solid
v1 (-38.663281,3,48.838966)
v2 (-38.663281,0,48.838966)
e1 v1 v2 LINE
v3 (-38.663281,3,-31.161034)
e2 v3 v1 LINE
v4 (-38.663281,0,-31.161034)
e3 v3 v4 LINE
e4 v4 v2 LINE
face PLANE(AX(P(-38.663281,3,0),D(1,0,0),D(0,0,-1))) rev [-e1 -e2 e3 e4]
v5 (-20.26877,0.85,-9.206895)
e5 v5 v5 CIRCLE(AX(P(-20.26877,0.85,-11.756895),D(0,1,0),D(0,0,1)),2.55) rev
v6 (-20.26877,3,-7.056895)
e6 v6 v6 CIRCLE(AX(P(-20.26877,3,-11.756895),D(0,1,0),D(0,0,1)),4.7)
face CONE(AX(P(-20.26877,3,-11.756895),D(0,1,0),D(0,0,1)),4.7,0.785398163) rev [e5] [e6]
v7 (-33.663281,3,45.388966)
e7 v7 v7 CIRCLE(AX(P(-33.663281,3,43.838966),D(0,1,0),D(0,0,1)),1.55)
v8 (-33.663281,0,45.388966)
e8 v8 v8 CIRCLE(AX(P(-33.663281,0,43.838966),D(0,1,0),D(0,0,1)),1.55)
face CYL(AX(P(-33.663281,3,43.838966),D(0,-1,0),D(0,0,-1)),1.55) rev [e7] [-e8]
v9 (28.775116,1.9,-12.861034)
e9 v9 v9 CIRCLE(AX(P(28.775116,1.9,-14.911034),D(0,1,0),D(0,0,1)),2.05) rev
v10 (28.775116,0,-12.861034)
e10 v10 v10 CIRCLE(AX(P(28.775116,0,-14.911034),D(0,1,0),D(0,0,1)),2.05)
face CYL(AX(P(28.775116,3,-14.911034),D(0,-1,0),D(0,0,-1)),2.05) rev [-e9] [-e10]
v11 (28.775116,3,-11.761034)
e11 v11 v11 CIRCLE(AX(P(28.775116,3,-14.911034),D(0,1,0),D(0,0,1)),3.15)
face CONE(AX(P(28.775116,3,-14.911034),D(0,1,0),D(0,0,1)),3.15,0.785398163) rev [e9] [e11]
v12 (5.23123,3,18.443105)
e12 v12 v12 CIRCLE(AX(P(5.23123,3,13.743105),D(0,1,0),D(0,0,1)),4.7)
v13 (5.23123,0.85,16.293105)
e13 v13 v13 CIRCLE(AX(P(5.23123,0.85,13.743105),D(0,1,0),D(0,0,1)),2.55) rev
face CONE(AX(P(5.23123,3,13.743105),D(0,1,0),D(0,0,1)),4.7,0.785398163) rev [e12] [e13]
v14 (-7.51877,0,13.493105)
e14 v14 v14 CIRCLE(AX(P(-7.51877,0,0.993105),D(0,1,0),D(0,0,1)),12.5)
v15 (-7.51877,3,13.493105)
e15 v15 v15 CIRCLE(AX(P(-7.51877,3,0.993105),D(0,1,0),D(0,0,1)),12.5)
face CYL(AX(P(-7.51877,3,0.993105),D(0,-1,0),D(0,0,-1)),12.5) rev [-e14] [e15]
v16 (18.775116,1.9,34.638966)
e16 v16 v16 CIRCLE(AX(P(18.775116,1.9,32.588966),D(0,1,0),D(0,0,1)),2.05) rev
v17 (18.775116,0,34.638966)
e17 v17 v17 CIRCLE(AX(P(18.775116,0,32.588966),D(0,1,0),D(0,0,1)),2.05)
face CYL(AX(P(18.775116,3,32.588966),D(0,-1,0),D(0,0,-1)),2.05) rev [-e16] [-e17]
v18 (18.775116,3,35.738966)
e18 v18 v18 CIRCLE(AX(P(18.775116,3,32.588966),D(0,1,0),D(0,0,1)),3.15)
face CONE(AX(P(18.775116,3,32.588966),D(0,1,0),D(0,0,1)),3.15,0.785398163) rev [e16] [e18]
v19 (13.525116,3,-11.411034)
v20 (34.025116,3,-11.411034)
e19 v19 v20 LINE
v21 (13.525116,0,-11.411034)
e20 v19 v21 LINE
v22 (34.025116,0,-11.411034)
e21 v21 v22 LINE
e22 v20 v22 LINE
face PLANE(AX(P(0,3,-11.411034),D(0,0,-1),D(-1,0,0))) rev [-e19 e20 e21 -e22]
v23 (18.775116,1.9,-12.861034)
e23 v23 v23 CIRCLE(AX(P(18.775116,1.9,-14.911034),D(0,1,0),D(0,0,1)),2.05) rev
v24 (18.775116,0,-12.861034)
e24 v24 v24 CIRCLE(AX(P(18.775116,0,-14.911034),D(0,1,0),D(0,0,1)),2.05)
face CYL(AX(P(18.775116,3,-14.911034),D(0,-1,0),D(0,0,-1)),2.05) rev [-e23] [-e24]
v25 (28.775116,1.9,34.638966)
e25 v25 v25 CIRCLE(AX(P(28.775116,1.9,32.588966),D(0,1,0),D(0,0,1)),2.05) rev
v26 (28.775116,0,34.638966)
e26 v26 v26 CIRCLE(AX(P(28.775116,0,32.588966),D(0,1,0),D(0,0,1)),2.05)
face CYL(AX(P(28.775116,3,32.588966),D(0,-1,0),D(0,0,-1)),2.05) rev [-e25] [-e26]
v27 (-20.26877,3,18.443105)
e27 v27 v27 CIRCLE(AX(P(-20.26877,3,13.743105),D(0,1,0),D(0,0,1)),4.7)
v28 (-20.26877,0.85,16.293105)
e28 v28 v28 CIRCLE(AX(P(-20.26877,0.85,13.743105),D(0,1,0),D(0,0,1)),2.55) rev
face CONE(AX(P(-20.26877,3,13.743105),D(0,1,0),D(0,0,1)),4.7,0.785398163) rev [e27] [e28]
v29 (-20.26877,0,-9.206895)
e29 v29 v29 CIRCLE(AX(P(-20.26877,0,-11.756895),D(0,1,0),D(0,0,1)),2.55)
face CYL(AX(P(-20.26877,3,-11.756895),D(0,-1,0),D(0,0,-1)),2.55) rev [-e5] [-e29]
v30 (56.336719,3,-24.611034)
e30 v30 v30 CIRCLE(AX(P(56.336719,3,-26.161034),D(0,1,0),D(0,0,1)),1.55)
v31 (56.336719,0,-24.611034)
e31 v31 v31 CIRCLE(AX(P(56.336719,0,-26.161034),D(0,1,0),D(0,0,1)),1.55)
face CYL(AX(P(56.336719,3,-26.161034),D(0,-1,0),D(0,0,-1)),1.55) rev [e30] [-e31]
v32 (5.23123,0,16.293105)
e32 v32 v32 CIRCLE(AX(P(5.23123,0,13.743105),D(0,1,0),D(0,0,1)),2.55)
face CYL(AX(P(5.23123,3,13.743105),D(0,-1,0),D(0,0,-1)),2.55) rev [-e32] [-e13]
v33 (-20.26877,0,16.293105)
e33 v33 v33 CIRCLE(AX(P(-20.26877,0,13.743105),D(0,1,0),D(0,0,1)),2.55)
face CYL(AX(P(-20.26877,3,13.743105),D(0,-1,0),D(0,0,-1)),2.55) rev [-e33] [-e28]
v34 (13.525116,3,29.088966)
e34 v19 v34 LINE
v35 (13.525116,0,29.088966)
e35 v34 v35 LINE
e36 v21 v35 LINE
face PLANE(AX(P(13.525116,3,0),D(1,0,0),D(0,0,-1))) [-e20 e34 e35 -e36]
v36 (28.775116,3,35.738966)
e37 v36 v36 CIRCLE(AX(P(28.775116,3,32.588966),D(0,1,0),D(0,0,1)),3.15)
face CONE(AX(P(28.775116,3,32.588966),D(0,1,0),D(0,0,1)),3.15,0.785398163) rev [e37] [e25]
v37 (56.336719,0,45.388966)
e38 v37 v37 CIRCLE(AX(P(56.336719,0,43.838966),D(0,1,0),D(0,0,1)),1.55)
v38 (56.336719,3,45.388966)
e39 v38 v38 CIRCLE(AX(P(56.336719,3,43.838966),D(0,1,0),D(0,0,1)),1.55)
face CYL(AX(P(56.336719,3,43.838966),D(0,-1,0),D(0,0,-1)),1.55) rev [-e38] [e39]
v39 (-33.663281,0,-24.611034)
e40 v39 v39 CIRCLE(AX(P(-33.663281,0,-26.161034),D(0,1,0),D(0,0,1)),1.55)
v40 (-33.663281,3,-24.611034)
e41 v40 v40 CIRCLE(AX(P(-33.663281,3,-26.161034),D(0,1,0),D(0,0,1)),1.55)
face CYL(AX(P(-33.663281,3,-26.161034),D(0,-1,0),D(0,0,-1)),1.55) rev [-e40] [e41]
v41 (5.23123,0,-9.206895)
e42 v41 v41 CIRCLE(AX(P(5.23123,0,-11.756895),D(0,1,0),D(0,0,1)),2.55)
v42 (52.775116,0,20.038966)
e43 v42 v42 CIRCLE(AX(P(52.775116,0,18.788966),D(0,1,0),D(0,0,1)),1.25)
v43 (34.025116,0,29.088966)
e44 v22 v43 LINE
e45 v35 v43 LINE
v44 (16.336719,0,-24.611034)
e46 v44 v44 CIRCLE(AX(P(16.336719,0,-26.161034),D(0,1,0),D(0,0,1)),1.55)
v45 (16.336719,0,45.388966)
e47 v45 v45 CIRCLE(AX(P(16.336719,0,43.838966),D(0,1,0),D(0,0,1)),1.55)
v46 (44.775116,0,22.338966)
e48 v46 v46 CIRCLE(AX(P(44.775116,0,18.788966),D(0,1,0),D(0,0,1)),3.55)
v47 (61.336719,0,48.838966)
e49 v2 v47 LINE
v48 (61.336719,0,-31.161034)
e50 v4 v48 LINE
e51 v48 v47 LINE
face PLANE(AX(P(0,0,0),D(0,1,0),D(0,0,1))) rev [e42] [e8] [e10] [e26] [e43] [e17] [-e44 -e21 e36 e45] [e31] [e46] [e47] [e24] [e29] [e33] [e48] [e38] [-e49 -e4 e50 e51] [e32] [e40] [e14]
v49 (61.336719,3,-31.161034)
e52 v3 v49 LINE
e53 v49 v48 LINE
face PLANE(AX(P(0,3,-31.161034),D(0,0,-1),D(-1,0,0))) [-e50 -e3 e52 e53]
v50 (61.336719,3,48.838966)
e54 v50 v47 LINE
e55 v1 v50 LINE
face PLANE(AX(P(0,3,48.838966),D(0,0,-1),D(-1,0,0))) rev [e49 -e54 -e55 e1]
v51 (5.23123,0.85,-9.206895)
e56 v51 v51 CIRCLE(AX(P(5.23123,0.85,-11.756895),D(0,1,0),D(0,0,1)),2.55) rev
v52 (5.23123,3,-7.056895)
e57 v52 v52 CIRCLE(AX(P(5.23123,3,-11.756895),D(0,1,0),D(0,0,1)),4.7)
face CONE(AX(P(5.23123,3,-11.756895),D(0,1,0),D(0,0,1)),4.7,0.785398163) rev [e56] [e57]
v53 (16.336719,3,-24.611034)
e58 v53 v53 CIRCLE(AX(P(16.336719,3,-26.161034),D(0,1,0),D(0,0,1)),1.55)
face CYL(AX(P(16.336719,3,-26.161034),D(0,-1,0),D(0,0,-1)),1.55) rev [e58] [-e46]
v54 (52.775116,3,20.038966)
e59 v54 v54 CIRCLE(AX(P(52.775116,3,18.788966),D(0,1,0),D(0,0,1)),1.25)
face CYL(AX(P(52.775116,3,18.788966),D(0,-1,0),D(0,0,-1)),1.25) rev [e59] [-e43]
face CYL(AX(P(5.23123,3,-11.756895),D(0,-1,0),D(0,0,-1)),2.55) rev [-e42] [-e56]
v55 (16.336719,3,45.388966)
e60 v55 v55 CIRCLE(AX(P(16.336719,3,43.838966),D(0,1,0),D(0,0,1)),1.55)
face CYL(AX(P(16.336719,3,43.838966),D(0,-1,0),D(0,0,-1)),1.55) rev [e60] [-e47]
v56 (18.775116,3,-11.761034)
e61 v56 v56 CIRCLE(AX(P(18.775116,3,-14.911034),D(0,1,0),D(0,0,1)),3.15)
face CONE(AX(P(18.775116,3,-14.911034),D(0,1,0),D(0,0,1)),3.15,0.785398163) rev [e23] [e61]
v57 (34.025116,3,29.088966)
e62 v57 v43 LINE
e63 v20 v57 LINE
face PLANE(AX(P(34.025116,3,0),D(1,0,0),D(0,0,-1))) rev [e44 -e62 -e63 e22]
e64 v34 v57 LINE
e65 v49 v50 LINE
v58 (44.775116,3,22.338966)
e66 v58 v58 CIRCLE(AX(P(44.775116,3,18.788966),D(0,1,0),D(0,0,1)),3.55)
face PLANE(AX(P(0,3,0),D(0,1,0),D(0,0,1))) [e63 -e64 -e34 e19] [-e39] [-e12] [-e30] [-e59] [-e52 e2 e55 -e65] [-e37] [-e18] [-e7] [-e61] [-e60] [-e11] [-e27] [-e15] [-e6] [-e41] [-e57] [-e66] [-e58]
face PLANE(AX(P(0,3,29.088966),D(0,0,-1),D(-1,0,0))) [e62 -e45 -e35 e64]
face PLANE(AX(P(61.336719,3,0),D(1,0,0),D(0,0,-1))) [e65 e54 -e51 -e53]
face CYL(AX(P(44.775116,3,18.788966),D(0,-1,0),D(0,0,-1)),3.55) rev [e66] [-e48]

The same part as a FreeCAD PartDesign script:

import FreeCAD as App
import Part
import Sketcher

V = App.Vector
Q = App.Units.Quantity

doc = App.newDocument("Part")
params = doc.addObject("Spreadsheet::Sheet", "Params")
for row, (alias, value) in enumerate([
    ("sketch1_diameter", "25 mm"),
    ("sketch1_diameter2", "3.1 mm"),
    ("sketch1_diameter3", "5.1 mm"),
    ("sketch1_diameter4", "4.1 mm"),
    ("sketch1_diameter5", "7.1 mm"),
    ("pad1_length", "3 mm"),
    ("sketch2_width", "3 mm"),
    ("sketch2_height", "4.7 mm"),
    ("sketch2_width2", "0.55 mm"),
    ("groove_angle", "360 deg"),
    ("linearpattern_pitch", "25.5 mm"),
    ("linearpattern2_pitch", "36.062446 mm"),
    ("linearpattern3_pitch", "25.5 mm"),
    ("sketch3_width", "3 mm"),
    ("sketch3_height", "1.7 mm"),
    ("sketch3_width2", "1.55 mm"),
    ("groove2_angle", "360 deg"),
    ("linearpattern4_pitch", "10 mm"),
    ("linearpattern5_pitch", "47.5 mm"),
    ("linearpattern6_pitch", "48.54122 mm"),
], start=1):
    params.set(f"A{row}", alias)
    params.set(f"B{row}", "=" + value)
    params.setAlias(f"B{row}", alias)

body = doc.addObject("PartDesign::Body", "Body")

# Sketch on XZ plane
sketch1 = body.newObject("Sketcher::SketchObject", "Sketch")
sketch1.AttachmentSupport = (doc.getObject("XZ_Plane"), [""])
sketch1.MapMode = "FlatFace"
sketch1.addGeometry(Part.LineSegment(V(-38.7, -31.2, 0), V(-38.7, 48.8, 0)), False)
sketch1.addGeometry(Part.LineSegment(V(-38.7, 48.8, 0), V(61.3, 48.8, 0)), False)
sketch1.addGeometry(Part.LineSegment(V(61.3, 48.8, 0), V(61.3, -31.2, 0)), False)
sketch1.addGeometry(Part.LineSegment(V(61.3, -31.2, 0), V(-38.7, -31.2, 0)), False)
sketch1.addGeometry(Part.Circle(V(-33.7, 43.8, 0), V(0, 0, 1), 1.6), False)
sketch1.addGeometry(Part.Circle(V(-20.3, 13.7, 0), V(0, 0, 1), 2.5), False)
sketch1.addGeometry(Part.Circle(V(5.2, 13.7, 0), V(0, 0, 1), 2.5), False)
sketch1.addGeometry(Part.Circle(V(16.3, 43.8, 0), V(0, 0, 1), 1.6), False)
sketch1.addGeometry(Part.Circle(V(18.8, 32.6, 0), V(0, 0, 1), 2), False)
sketch1.addGeometry(Part.Circle(V(28.8, 32.6, 0), V(0, 0, 1), 2), False)
sketch1.addGeometry(Part.Circle(V(56.3, 43.8, 0), V(0, 0, 1), 1.6), False)
sketch1.addGeometry(Part.Circle(V(44.8, 18.8, 0), V(0, 0, 1), 3.5), False)
sketch1.addGeometry(Part.Circle(V(52.8, 18.8, 0), V(0, 0, 1), 1.2), False)
sketch1.addGeometry(Part.Circle(V(-7.5, 1, 0), V(0, 0, 1), 12.5), False)
sketch1.addGeometry(Part.Circle(V(-20.3, -11.8, 0), V(0, 0, 1), 2.5), False)
sketch1.addGeometry(Part.Circle(V(-33.7, -26.2, 0), V(0, 0, 1), 1.6), False)
sketch1.addGeometry(Part.Circle(V(5.2, -11.8, 0), V(0, 0, 1), 2.5), False)
sketch1.addGeometry(Part.LineSegment(V(34, 29.1, 0), V(13.5, 29.1, 0)), False)
sketch1.addGeometry(Part.LineSegment(V(13.5, 29.1, 0), V(13.5, -11.4, 0)), False)
sketch1.addGeometry(Part.LineSegment(V(13.5, -11.4, 0), V(34, -11.4, 0)), False)
sketch1.addGeometry(Part.LineSegment(V(34, -11.4, 0), V(34, 29.1, 0)), False)
sketch1.addGeometry(Part.Circle(V(18.8, -14.9, 0), V(0, 0, 1), 2), False)
sketch1.addGeometry(Part.Circle(V(28.8, -14.9, 0), V(0, 0, 1), 2), False)
sketch1.addGeometry(Part.Circle(V(16.3, -26.2, 0), V(0, 0, 1), 1.6), False)
sketch1.addGeometry(Part.Circle(V(56.3, -26.2, 0), V(0, 0, 1), 1.6), False)
sketch1.addConstraint(Sketcher.Constraint("Coincident", 0, 2, 1, 1))
sketch1.addConstraint(Sketcher.Constraint("Coincident", 1, 2, 2, 1))
sketch1.addConstraint(Sketcher.Constraint("Coincident", 2, 2, 3, 1))
sketch1.addConstraint(Sketcher.Constraint("Coincident", 3, 2, 0, 1))
sketch1.addConstraint(Sketcher.Constraint("Coincident", 17, 2, 18, 1))
sketch1.addConstraint(Sketcher.Constraint("Coincident", 18, 2, 19, 1))
sketch1.addConstraint(Sketcher.Constraint("Coincident", 19, 2, 20, 1))
sketch1.addConstraint(Sketcher.Constraint("Coincident", 20, 2, 17, 1))
sketch1.addConstraint(Sketcher.Constraint("Vertical", 0))
sketch1.addConstraint(Sketcher.Constraint("Horizontal", 1))
sketch1.addConstraint(Sketcher.Constraint("Vertical", 2))
sketch1.addConstraint(Sketcher.Constraint("Horizontal", 3))
sketch1.addConstraint(Sketcher.Constraint("Horizontal", 17))
sketch1.addConstraint(Sketcher.Constraint("Vertical", 18))
sketch1.addConstraint(Sketcher.Constraint("Horizontal", 19))
sketch1.addConstraint(Sketcher.Constraint("Vertical", 20))
sketch1.addConstraint(Sketcher.Constraint("Equal", 5, 6))
sketch1.addConstraint(Sketcher.Constraint("Equal", 4, 7))
sketch1.addConstraint(Sketcher.Constraint("Equal", 8, 9))
sketch1.addConstraint(Sketcher.Constraint("Equal", 7, 10))
sketch1.addConstraint(Sketcher.Constraint("Equal", 6, 14))
sketch1.addConstraint(Sketcher.Constraint("Equal", 10, 15))
sketch1.addConstraint(Sketcher.Constraint("Equal", 14, 16))
sketch1.addConstraint(Sketcher.Constraint("Equal", 9, 21))
sketch1.addConstraint(Sketcher.Constraint("Equal", 21, 22))
sketch1.addConstraint(Sketcher.Constraint("Equal", 15, 23))
sketch1.addConstraint(Sketcher.Constraint("Equal", 23, 24))
sketch1.addConstraint(Sketcher.Constraint("Horizontal", 5, 3, 6, 3))
sketch1.addConstraint(Sketcher.Constraint("Horizontal", 4, 3, 7, 3))
sketch1.addConstraint(Sketcher.Constraint("Horizontal", 8, 3, 9, 3))
sketch1.addConstraint(Sketcher.Constraint("Horizontal", 7, 3, 10, 3))
sketch1.addConstraint(Sketcher.Constraint("Horizontal", 11, 3, 12, 3))
sketch1.addConstraint(Sketcher.Constraint("Horizontal", 14, 3, 16, 3))
sketch1.addConstraint(Sketcher.Constraint("Horizontal", 21, 3, 22, 3))
sketch1.addConstraint(Sketcher.Constraint("Horizontal", 15, 3, 23, 3))
sketch1.addConstraint(Sketcher.Constraint("Horizontal", 23, 3, 24, 3))
sketch1.addConstraint(Sketcher.Constraint("Vertical", 5, 3, 14, 3))
sketch1.addConstraint(Sketcher.Constraint("Vertical", 4, 3, 15, 3))
sketch1.addConstraint(Sketcher.Constraint("Vertical", 6, 3, 16, 3))
sketch1.addConstraint(Sketcher.Constraint("Vertical", 8, 3, 21, 3))
sketch1.addConstraint(Sketcher.Constraint("Vertical", 9, 3, 22, 3))
sketch1.addConstraint(Sketcher.Constraint("Vertical", 7, 3, 23, 3))
sketch1.addConstraint(Sketcher.Constraint("Vertical", 10, 3, 24, 3))
sketch1.addConstraint(Sketcher.Constraint("Diameter", 13, 25.0))
sketch1.addConstraint(Sketcher.Constraint("Diameter", 4, 3.1))
sketch1.addConstraint(Sketcher.Constraint("Diameter", 5, 5.1))
sketch1.addConstraint(Sketcher.Constraint("Diameter", 8, 4.1))
sketch1.addConstraint(Sketcher.Constraint("Diameter", 11, 7.1))
sketch1.addConstraint(Sketcher.Constraint("Diameter", 12, 2.5))
sketch1.addConstraint(Sketcher.Constraint("DistanceX", 1, 1, 1, 2, 100.0))
sketch1.addConstraint(Sketcher.Constraint("DistanceY", 0, 1, 0, 2, 80.0))
sketch1.addConstraint(Sketcher.Constraint("DistanceX", 17, 2, 17, 1, 20.5))
sketch1.addConstraint(Sketcher.Constraint("DistanceY", 18, 2, 18, 1, 40.5))
sketch1.addConstraint(Sketcher.Constraint("DistanceX", 4, 3, 7, 3, 50.0))
sketch1.addConstraint(Sketcher.Constraint("DistanceX", 8, 3, 9, 3, 10.0))
sketch1.addConstraint(Sketcher.Constraint("DistanceX", 7, 3, 10, 3, 40.0))
sketch1.addConstraint(Sketcher.Constraint("DistanceX", 9, 3, 11, 3, 16.0))
sketch1.addConstraint(Sketcher.Constraint("DistanceX", 11, 3, 12, 3, 8.0))
sketch1.addConstraint(Sketcher.Constraint("DistanceY", 15, 3, 4, 3, 70.0))
sketch1.addConstraint(Sketcher.Constraint("DistanceX", 0, 2, 4, 3, 5.0))
sketch1.addConstraint(Sketcher.Constraint("DistanceY", 4, 3, 0, 2, 5.0))
sketch1.addConstraint(Sketcher.Constraint("DistanceX", 5, 3, 6, 3, 25.5))
sketch1.addConstraint(Sketcher.Constraint("DistanceY", 11, 3, 9, 3, 13.8))
sketch1.addConstraint(Sketcher.Constraint("DistanceY", 14, 3, 5, 3, 25.5))
sketch1.addConstraint(Sketcher.Constraint("DistanceY", 21, 3, 11, 3, 33.7))
sketch1.addConstraint(Sketcher.Constraint("DistanceY", 17, 2, 8, 3, 3.5))
sketch1.addConstraint(Sketcher.Constraint("DistanceY", 8, 3, 7, 3, 11.25))
sketch1.addConstraint(Sketcher.Constraint("DistanceX", 5, 3, 13, 3, 12.75))
sketch1.addConstraint(Sketcher.Constraint("DistanceY", 13, 3, 5, 3, 12.75))
sketch1.addConstraint(Sketcher.Constraint("DistanceX", 17, 2, 8, 3, 5.25))
sketch1.addConstraint(Sketcher.Constraint("DistanceX", 4, 3, -1, 1, 33.663281))
sketch1.addConstraint(Sketcher.Constraint("DistanceX", 5, 3, -1, 1, 20.26877))
sketch1.addConstraint(Sketcher.Constraint("DistanceY", 5, 3, 4, 3, 30.095861))
sketch1.addConstraint(Sketcher.Constraint("DistanceY", -1, 1, 4, 3, 43.838966))
sketch1.addConstraint(Sketcher.Constraint("DistanceX", -1, 1, 8, 3, 18.775116))
sketch1.setExpression("Constraints[43]", "Params.sketch1_diameter")
sketch1.setExpression("Constraints[44]", "Params.sketch1_diameter2")
sketch1.setExpression("Constraints[45]", "Params.sketch1_diameter3")
sketch1.setExpression("Constraints[46]", "Params.sketch1_diameter4")
sketch1.setExpression("Constraints[47]", "Params.sketch1_diameter5")
pad1 = body.newObject("PartDesign::Pad", "Pad")
pad1.Profile = sketch1
pad1.setExpression("Length", "Params.pad1_length")
pad1.Reversed = True

# Sketch on YZ plane
sketch2 = body.newObject("Sketcher::SketchObject", "Sketch001")
sketch2.AttachmentSupport = (doc.getObject("YZ_Plane"), [""])
sketch2.MapMode = "FlatFace"
sketch2.AttachmentOffset = App.Placement(V(0, 0, -20.26877), App.Rotation())
sketch2.addGeometry(Part.LineSegment(V(0, 13.7, 0), V(3, 13.7, 0)), False)
sketch2.addGeometry(Part.LineSegment(V(3, 13.7, 0), V(3, 18.4, 0)), False)
sketch2.addGeometry(Part.LineSegment(V(3, 18.4, 0), V(0.6, 16, 0)), False)
sketch2.addGeometry(Part.LineSegment(V(0.6, 16, 0), V(0, 16, 0)), False)
sketch2.addGeometry(Part.LineSegment(V(0, 16, 0), V(0, 13.7, 0)), False)
sketch2.addGeometry(Part.LineSegment(V(3, 13.7, 0), V(0, 13.7, 0)), True)  # axis
sketch2.addConstraint(Sketcher.Constraint("Coincident", 0, 2, 1, 1))
sketch2.addConstraint(Sketcher.Constraint("Coincident", 1, 2, 2, 1))
sketch2.addConstraint(Sketcher.Constraint("Coincident", 2, 2, 3, 1))
sketch2.addConstraint(Sketcher.Constraint("Coincident", 3, 2, 4, 1))
sketch2.addConstraint(Sketcher.Constraint("Coincident", 4, 2, 0, 1))
sketch2.addConstraint(Sketcher.Constraint("Horizontal", 0))
sketch2.addConstraint(Sketcher.Constraint("Vertical", 1))
sketch2.addConstraint(Sketcher.Constraint("Horizontal", 3))
sketch2.addConstraint(Sketcher.Constraint("Vertical", 4))
sketch2.addConstraint(Sketcher.Constraint("Horizontal", 5))
sketch2.addConstraint(Sketcher.Constraint("Coincident", 5, 1, 0, 2))
sketch2.addConstraint(Sketcher.Constraint("PointOnObject", 3, 2, -2))
sketch2.addConstraint(Sketcher.Constraint("PointOnObject", 5, 2, -2))
sketch2.addConstraint(Sketcher.Constraint("DistanceX", 0, 1, 0, 2, 3.0))
sketch2.addConstraint(Sketcher.Constraint("Angle", 2, Q("-135 deg")))
sketch2.addConstraint(Sketcher.Constraint("DistanceY", 1, 1, 1, 2, 4.7))
sketch2.addConstraint(Sketcher.Constraint("DistanceX", 3, 2, 3, 1, 0.55))
sketch2.addConstraint(Sketcher.Constraint("DistanceY", -1, 1, 0, 2, 13.743105))
sketch2.setExpression("Constraints[13]", "Params.sketch2_width")
sketch2.setExpression("Constraints[15]", "Params.sketch2_height")
sketch2.setExpression("Constraints[16]", "Params.sketch2_width2")
groove = body.newObject("PartDesign::Groove", "Groove")
groove.Profile = sketch2
groove.ReferenceAxis = (sketch2, ["Axis0"])
groove.setExpression("Angle", "Params.groove_angle")
doc.recompute()

linearpattern = body.newObject("PartDesign::LinearPattern", "LinearPattern")
linearpattern.Originals = [groove]
linearpattern.Direction = (doc.getObject("X_Axis"), [""])
linearpattern.Mode = "offset"
linearpattern.setExpression("Offset", "Params.linearpattern_pitch")
linearpattern.Occurrences = 2
body.Tip = linearpattern
doc.recompute()

datumline = body.newObject("PartDesign::Line", "DatumLine")
datumline.Placement = App.Placement(V(0, 0, 0), App.Rotation(V(0, 0, 1), V(0.707106781, 0, -0.707106781)))
linearpattern2 = body.newObject("PartDesign::LinearPattern", "LinearPattern001")
linearpattern2.Originals = [groove]
linearpattern2.Direction = (datumline, [""])
linearpattern2.Mode = "offset"
linearpattern2.setExpression("Offset", "Params.linearpattern2_pitch")
linearpattern2.Occurrences = 2
body.Tip = linearpattern2
doc.recompute()

linearpattern3 = body.newObject("PartDesign::LinearPattern", "LinearPattern002")
linearpattern3.Originals = [groove]
linearpattern3.Direction = (doc.getObject("Z_Axis"), [""])
linearpattern3.Mode = "offset"
linearpattern3.setExpression("Offset", "Params.linearpattern3_pitch")
linearpattern3.Occurrences = 2
linearpattern3.Reversed = True
body.Tip = linearpattern3

# Sketch on YZ plane
sketch3 = body.newObject("Sketcher::SketchObject", "Sketch002")
sketch3.AttachmentSupport = (doc.getObject("YZ_Plane"), [""])
sketch3.MapMode = "FlatFace"
sketch3.AttachmentOffset = App.Placement(V(0, 0, 18.775116), App.Rotation())
sketch3.addGeometry(Part.LineSegment(V(0, -14.9, 0), V(3, -14.9, 0)), False)
sketch3.addGeometry(Part.LineSegment(V(3, -14.9, 0), V(3, -11.8, 0)), False)
sketch3.addGeometry(Part.LineSegment(V(3, -11.8, 0), V(1.6, -13.2, 0)), False)
sketch3.addGeometry(Part.LineSegment(V(1.6, -13.2, 0), V(0, -13.2, 0)), False)
sketch3.addGeometry(Part.LineSegment(V(0, -13.2, 0), V(0, -14.9, 0)), False)
sketch3.addGeometry(Part.LineSegment(V(3, -14.9, 0), V(0, -14.9, 0)), True)  # axis
sketch3.addConstraint(Sketcher.Constraint("Coincident", 0, 2, 1, 1))
sketch3.addConstraint(Sketcher.Constraint("Coincident", 1, 2, 2, 1))
sketch3.addConstraint(Sketcher.Constraint("Coincident", 2, 2, 3, 1))
sketch3.addConstraint(Sketcher.Constraint("Coincident", 3, 2, 4, 1))
sketch3.addConstraint(Sketcher.Constraint("Coincident", 4, 2, 0, 1))
sketch3.addConstraint(Sketcher.Constraint("Horizontal", 0))
sketch3.addConstraint(Sketcher.Constraint("Vertical", 1))
sketch3.addConstraint(Sketcher.Constraint("Horizontal", 3))
sketch3.addConstraint(Sketcher.Constraint("Vertical", 4))
sketch3.addConstraint(Sketcher.Constraint("Horizontal", 5))
sketch3.addConstraint(Sketcher.Constraint("Coincident", 5, 1, 0, 2))
sketch3.addConstraint(Sketcher.Constraint("PointOnObject", 3, 2, -2))
sketch3.addConstraint(Sketcher.Constraint("PointOnObject", 5, 2, -2))
sketch3.addConstraint(Sketcher.Constraint("DistanceX", 0, 1, 0, 2, 3.0))
sketch3.addConstraint(Sketcher.Constraint("Angle", 2, Q("-135 deg")))
sketch3.addConstraint(Sketcher.Constraint("DistanceY", 4, 2, 4, 1, 1.7))
sketch3.addConstraint(Sketcher.Constraint("DistanceX", 3, 2, 3, 1, 1.55))
sketch3.addConstraint(Sketcher.Constraint("DistanceY", 0, 2, -1, 1, 14.911034))
sketch3.setExpression("Constraints[13]", "Params.sketch3_width")
sketch3.setExpression("Constraints[15]", "Params.sketch3_height")
sketch3.setExpression("Constraints[16]", "Params.sketch3_width2")
groove2 = body.newObject("PartDesign::Groove", "Groove001")
groove2.Profile = sketch3
groove2.ReferenceAxis = (sketch3, ["Axis0"])
groove2.setExpression("Angle", "Params.groove2_angle")
doc.recompute()

linearpattern4 = body.newObject("PartDesign::LinearPattern", "LinearPattern003")
linearpattern4.Originals = [groove2]
linearpattern4.Direction = (doc.getObject("X_Axis"), [""])
linearpattern4.Mode = "offset"
linearpattern4.setExpression("Offset", "Params.linearpattern4_pitch")
linearpattern4.Occurrences = 2
body.Tip = linearpattern4
doc.recompute()

linearpattern5 = body.newObject("PartDesign::LinearPattern", "LinearPattern004")
linearpattern5.Originals = [groove2]
linearpattern5.Direction = (doc.getObject("Z_Axis"), [""])
linearpattern5.Mode = "offset"
linearpattern5.setExpression("Offset", "Params.linearpattern5_pitch")
linearpattern5.Occurrences = 2
body.Tip = linearpattern5
doc.recompute()

datumline2 = body.newObject("PartDesign::Line", "DatumLine001")
datumline2.Placement = App.Placement(V(0, 0, 0), App.Rotation(V(0, 0, 1), V(0.206010481, 0, 0.978549785)))
linearpattern6 = body.newObject("PartDesign::LinearPattern", "LinearPattern005")
linearpattern6.Originals = [groove2]
linearpattern6.Direction = (datumline2, [""])
linearpattern6.Mode = "offset"
linearpattern6.setExpression("Offset", "Params.linearpattern6_pitch")
linearpattern6.Occurrences = 2
body.Tip = linearpattern6

doc.recompute()
